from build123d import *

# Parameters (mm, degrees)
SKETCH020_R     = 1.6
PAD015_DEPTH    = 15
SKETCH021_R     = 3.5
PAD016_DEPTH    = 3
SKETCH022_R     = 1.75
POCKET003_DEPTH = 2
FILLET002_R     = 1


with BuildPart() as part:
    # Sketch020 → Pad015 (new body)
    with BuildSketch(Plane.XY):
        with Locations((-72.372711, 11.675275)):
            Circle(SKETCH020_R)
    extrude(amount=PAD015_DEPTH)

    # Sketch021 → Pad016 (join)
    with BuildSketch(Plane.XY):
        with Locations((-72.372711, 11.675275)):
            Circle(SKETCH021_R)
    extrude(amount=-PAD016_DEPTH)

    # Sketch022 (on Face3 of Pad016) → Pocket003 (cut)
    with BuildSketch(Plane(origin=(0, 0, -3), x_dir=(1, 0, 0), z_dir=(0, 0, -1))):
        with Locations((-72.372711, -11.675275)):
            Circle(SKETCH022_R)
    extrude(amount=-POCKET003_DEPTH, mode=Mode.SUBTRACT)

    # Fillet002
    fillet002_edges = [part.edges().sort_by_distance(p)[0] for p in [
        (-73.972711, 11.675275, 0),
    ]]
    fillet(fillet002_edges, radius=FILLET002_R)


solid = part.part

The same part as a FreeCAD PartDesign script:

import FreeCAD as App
import Part
import Sketcher
from FreeCAD import Vector
Q = App.Units.Quantity


def edges_at(feature, points):
    """Names of the edges that pass closest to the given points."""
    edges = feature.Shape.Edges
    near = lambda p: min(range(len(edges)), key=lambda i: edges[i].distToShape(Part.Vertex(*p))[0])
    return sorted({f"Edge{near(p) + 1}" for p in points})

doc = App.newDocument("Part")
params = doc.addObject("Spreadsheet::Sheet", "Params")
for row, (alias, value) in enumerate([
    ("sketch1_diameter", "3.2 mm"),
    ("pad1_length", "15 mm"),
    ("sketch2_diameter", "7 mm"),
    ("pad2_length", "3 mm"),
    ("sketch3_diameter", "3.5 mm"),
    ("pocket1_length", "2 mm"),
    ("fillet_radius", "1 mm"),
], start=1):
    params.set(f"A{row}", alias)
    params.set(f"B{row}", "=" + value)
    params.setAlias(f"B{row}", alias)

body = doc.addObject("PartDesign::Body", "Body")

sketch1 = doc.addObject("Sketcher::SketchObject", "Sketch")
body.addObject(sketch1)
sketch1.AttachmentSupport = (doc.XY_Plane, [""])
sketch1.MapMode = "FlatFace"
sketch1.addGeometry(Part.Circle(Vector(-72.4, 11.7, 0), Vector(0, 0, 1), 1.6), False)
sketch1.addConstraint([
    Sketcher.Constraint("Diameter", 0, Q("3.2 mm")),
    Sketcher.Constraint("DistanceX", 0, 3, -1, 1, Q("72.372711 mm")),
    Sketcher.Constraint("DistanceY", -1, 1, 0, 3, Q("11.675275 mm")),
])
sketch1.setExpression("Constraints[0]", "Params.sketch1_diameter")
pad1 = doc.addObject("PartDesign::Pad", "Pad")
body.addObject(pad1)
pad1.Profile = sketch1
pad1.setExpression("Length", "Params.pad1_length")

sketch2 = doc.addObject("Sketcher::SketchObject", "Sketch001")
body.addObject(sketch2)
sketch2.AttachmentSupport = (doc.XY_Plane, [""])
sketch2.MapMode = "FlatFace"
sketch2.addGeometry(Part.Circle(Vector(-72.4, 11.7, 0), Vector(0, 0, 1), 3.5), False)
sketch2.addConstraint([
    Sketcher.Constraint("Diameter", 0, Q("7 mm")),
    Sketcher.Constraint("DistanceX", 0, 3, -1, 1, Q("72.372711 mm")),
    Sketcher.Constraint("DistanceY", -1, 1, 0, 3, Q("11.675275 mm")),
])
sketch2.setExpression("Constraints[0]", "Params.sketch2_diameter")
pad2 = doc.addObject("PartDesign::Pad", "Pad001")
body.addObject(pad2)
pad2.Profile = sketch2
pad2.setExpression("Length", "Params.pad2_length")
pad2.Reversed = True

sketch3 = doc.addObject("Sketcher::SketchObject", "Sketch002")
body.addObject(sketch3)
sketch3.AttachmentSupport = (doc.XY_Plane, [""])
sketch3.MapMode = "FlatFace"
sketch3.AttachmentOffset = App.Placement(Vector(0, 0, -3), App.Rotation())
sketch3.addGeometry(Part.Circle(Vector(-72.4, 11.7, 0), Vector(0, 0, 1), 1.8), False)
sketch3.addConstraint([
    Sketcher.Constraint("Diameter", 0, Q("3.5 mm")),
    Sketcher.Constraint("DistanceX", 0, 3, -1, 1, Q("72.372711 mm")),
    Sketcher.Constraint("DistanceY", -1, 1, 0, 3, Q("11.675275 mm")),
])
sketch3.setExpression("Constraints[0]", "Params.sketch3_diameter")
pocket1 = doc.addObject("PartDesign::Pocket", "Pocket")
body.addObject(pocket1)
pocket1.Profile = sketch3
pocket1.setExpression("Length", "Params.pocket1_length")
pocket1.Reversed = True
doc.recompute()

fillet = doc.addObject("PartDesign::Fillet", "Fillet")
body.addObject(fillet)
fillet.Base = (pocket1, edges_at(pocket1, [(-73.973, 11.675, 0)]))
fillet.setExpression("Radius", "Params.fillet_radius")

doc.recompute()
